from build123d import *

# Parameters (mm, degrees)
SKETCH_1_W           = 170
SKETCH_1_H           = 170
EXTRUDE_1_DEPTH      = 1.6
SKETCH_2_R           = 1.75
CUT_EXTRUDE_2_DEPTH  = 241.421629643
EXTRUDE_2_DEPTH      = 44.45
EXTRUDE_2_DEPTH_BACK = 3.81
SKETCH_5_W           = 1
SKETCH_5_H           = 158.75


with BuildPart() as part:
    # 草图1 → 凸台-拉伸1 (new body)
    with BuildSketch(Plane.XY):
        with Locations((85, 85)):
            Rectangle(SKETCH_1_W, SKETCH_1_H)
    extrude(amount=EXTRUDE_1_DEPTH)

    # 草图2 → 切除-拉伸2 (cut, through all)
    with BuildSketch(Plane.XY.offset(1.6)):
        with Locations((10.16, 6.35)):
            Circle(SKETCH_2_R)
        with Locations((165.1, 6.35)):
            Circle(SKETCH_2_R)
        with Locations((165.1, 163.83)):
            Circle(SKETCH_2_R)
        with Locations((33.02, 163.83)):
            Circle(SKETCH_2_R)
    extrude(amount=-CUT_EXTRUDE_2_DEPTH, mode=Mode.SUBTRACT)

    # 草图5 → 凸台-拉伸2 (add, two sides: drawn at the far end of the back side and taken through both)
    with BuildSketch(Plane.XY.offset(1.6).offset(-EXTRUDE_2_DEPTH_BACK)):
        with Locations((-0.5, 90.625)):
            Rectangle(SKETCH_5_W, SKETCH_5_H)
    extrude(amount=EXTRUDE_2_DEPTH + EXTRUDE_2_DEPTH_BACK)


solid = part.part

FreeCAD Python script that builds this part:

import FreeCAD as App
import Part
import Sketcher

V = App.Vector
Q = App.Units.Quantity


def add_polygon(sketch, points):
    """Adds a closed chain of lines whose ends are joined by coincident constraints."""
    first, n = sketch.GeometryCount, len(points)
    for a, b in zip(points, points[1:] + points[:1]):
        sketch.addGeometry(Part.LineSegment(App.Vector(*a, 0), App.Vector(*b, 0)), False)
    for i in range(n):
        sketch.addConstraint(Sketcher.Constraint("Coincident", first + i, 2, first + (i + 1) % n, 1))

doc = App.newDocument("Part")
body = doc.addObject("PartDesign::Body", "Body")

sketch1 = doc.addObject("Sketcher::SketchObject", "Sketch")
body.addObject(sketch1)
sketch1.AttachmentSupport = (doc.XY_Plane, [""])
sketch1.MapMode = "FlatFace"
add_polygon(sketch1, [(0, 170), (0, 0), (170, 0), (170, 170)])
sketch1.addConstraint([
    Sketcher.Constraint("Vertical", 0),
    Sketcher.Constraint("Horizontal", 1),
    Sketcher.Constraint("Vertical", 2),
    Sketcher.Constraint("Horizontal", 3),
    Sketcher.Constraint("Coincident", 0, 2, -1, 1),
    Sketcher.Constraint("Equal", 3, 0),
    Sketcher.Constraint("DistanceX", 1, 1, 1, 2, Q("170 mm")),
])
pad1 = doc.addObject("PartDesign::Pad", "Pad")
body.addObject(pad1)
pad1.Profile = sketch1
pad1.Length = 1.6

sketch2 = doc.addObject("Sketcher::SketchObject", "Sketch001")
body.addObject(sketch2)
sketch2.AttachmentSupport = (doc.XY_Plane, [""])
sketch2.MapMode = "FlatFace"
sketch2.AttachmentOffset = App.Placement(V(0, 0, 1.6), App.Rotation())
sketch2.addGeometry([
    Part.Circle(V(10.16, 6.35, 0), V(0, 0, 1), 1.75),
    Part.Circle(V(165.1, 6.35, 0), V(0, 0, 1), 1.75),
    Part.Circle(V(165.1, 163.83, 0), V(0, 0, 1), 1.75),
    Part.Circle(V(33.02, 163.83, 0), V(0, 0, 1), 1.75),
], False)
sketch2.addConstraint([
    Sketcher.Constraint("Equal", 0, 1),
    Sketcher.Constraint("Equal", 1, 2),
    Sketcher.Constraint("Equal", 2, 3),
    Sketcher.Constraint("Horizontal", 0, 3, 1, 3),
    Sketcher.Constraint("Horizontal", 2, 3, 3, 3),
    Sketcher.Constraint("Vertical", 1, 3, 2, 3),
    Sketcher.Constraint("Diameter", 0, Q("3.5 mm")),
    Sketcher.Constraint("DistanceX", -1, 1, 1, 3, Q("165.1 mm")),
    Sketcher.Constraint("DistanceX", -1, 1, 0, 3, Q("10.16 mm")),
    Sketcher.Constraint("DistanceY", -1, 1, 0, 3, Q("6.35 mm")),
    Sketcher.Constraint("DistanceY", -1, 1, 2, 3, Q("163.83 mm")),
    Sketcher.Constraint("DistanceX", -1, 1, 3, 3, Q("33.02 mm")),
])
pocket1 = doc.addObject("PartDesign::Pocket", "Pocket")
body.addObject(pocket1)
pocket1.Profile = sketch2
pocket1.Type = "ThroughAll"

sketch3 = doc.addObject("Sketcher::SketchObject", "Sketch002")
body.addObject(sketch3)
sketch3.AttachmentSupport = (doc.XY_Plane, [""])
sketch3.MapMode = "FlatFace"
sketch3.AttachmentOffset = App.Placement(V(0, 0, 1.6), App.Rotation())
add_polygon(sketch3, [(-1, 170), (-1, 11.25), (0, 11.25), (0, 170)])
sketch3.addConstraint([
    Sketcher.Constraint("Vertical", 0),
    Sketcher.Constraint("Horizontal", 1),
    Sketcher.Constraint("Vertical", 2),
    Sketcher.Constraint("Horizontal", 3),
    Sketcher.Constraint("PointOnObject", 1, 2, -2),
    Sketcher.Constraint("DistanceX", 1, 1, 1, 2, Q("1 mm")),
    Sketcher.Constraint("DistanceY", -1, 1, 2, 2, Q("170 mm")),
    Sketcher.Constraint("DistanceY", 0, 2, 0, 1, Q("158.75 mm")),
])
pad2 = doc.addObject("PartDesign::Pad", "Pad001")
body.addObject(pad2)
pad2.Profile = sketch3
pad2.Type = "TwoLengths"
pad2.Length = 44.45
pad2.Length2 = 3.81

doc.recompute()
